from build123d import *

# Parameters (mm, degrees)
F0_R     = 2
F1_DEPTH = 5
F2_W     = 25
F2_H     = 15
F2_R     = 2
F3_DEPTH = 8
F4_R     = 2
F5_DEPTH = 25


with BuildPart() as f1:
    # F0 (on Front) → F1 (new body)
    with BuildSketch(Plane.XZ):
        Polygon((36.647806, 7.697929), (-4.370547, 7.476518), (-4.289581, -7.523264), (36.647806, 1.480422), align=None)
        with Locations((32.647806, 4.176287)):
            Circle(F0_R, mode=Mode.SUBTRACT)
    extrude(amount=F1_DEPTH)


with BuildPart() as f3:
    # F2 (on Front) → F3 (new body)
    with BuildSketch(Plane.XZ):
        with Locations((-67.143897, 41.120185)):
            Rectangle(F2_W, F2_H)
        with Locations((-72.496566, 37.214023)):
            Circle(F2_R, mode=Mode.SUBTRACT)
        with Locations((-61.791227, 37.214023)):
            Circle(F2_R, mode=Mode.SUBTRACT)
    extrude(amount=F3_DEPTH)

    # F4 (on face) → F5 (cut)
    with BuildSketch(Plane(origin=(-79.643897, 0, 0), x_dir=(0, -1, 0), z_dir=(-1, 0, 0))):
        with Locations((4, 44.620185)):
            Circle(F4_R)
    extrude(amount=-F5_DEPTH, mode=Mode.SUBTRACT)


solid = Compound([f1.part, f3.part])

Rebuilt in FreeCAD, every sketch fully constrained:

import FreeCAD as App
import Part
import Sketcher
Q = App.Units.Quantity


def add_polygon(sketch, points):
    """Adds a closed chain of lines whose ends are joined by coincident constraints."""
    first, n = sketch.GeometryCount, len(points)
    for a, b in zip(points, points[1:] + points[:1]):
        sketch.addGeometry(Part.LineSegment(App.Vector(*a, 0), App.Vector(*b, 0)), False)
    for i in range(n):
        sketch.addConstraint(Sketcher.Constraint("Coincident", first + i, 2, first + (i + 1) % n, 1))

doc = App.newDocument("Part")
body = doc.addObject("PartDesign::Body", "Body")

# Sketch on XZ plane
sketch1 = body.newObject("Sketcher::SketchObject", "Sketch")
sketch1.AttachmentSupport = (doc.getObject("XZ_Plane"), [""])
sketch1.MapMode = "FlatFace"
add_polygon(sketch1, [(36.6, 7.7), (-4.4, 7.5), (-4.3, -7.5), (36.6, 1.5)])  # lines 0-3
sketch1.addGeometry(Part.Circle(App.Vector(32.6, 4.2, 0), App.Vector(0, 0, 1), 2), False)  # 4
sketch1.addConstraint(Sketcher.Constraint("Vertical", 3))
sketch1.addConstraint(Sketcher.Constraint("Perpendicular", 0, 1))
sketch1.addConstraint(Sketcher.Constraint("Diameter", 4, Q("4 mm")))
sketch1.addConstraint(Sketcher.Constraint("Distance", 1, Q("15.000001 mm")))
sketch1.addConstraint(Sketcher.Constraint("DistanceX", 4, 3, 2, 2, Q("4 mm")))
sketch1.addConstraint(Sketcher.Constraint("Distance", 0, Q("41.018951 mm")))
sketch1.addConstraint(Sketcher.Constraint("Distance", 2, Q("41.915821 mm")))
sketch1.addConstraint(Sketcher.Constraint("DistanceY", 3, 1, 3, 2, Q("6.217507 mm")))
sketch1.addConstraint(Sketcher.Constraint("DistanceY", -1, 1, 0, 2, Q("7.476518 mm")))
sketch1.addConstraint(Sketcher.Constraint("DistanceX", 1, 2, -1, 1, Q("4.289581 mm")))
sketch1.addConstraint(Sketcher.Constraint("DistanceY", 4, 3, 0, 2, Q("3.300231 mm")))
pad1 = body.newObject("PartDesign::Pad", "Pad")
pad1.Profile = sketch1
pad1.Length = 5
body2 = doc.addObject("PartDesign::Body", "Body001")

# Sketch on XZ plane
sketch2 = body2.newObject("Sketcher::SketchObject", "Sketch001")
sketch2.AttachmentSupport = (doc.getObject("XZ_Plane001"), [""])
sketch2.MapMode = "FlatFace"
add_polygon(sketch2, [(-79.6, 48.6), (-79.6, 33.6), (-54.6, 33.6), (-54.6, 48.6)])  # lines 0-3
sketch2.addGeometry(Part.Circle(App.Vector(-72.5, 37.2, 0), App.Vector(0, 0, 1), 2), False)  # 4
sketch2.addGeometry(Part.Circle(App.Vector(-61.8, 37.2, 0), App.Vector(0, 0, 1), 2), False)  # 5
sketch2.addConstraint(Sketcher.Constraint("Vertical", 0))
sketch2.addConstraint(Sketcher.Constraint("Horizontal", 1))
sketch2.addConstraint(Sketcher.Constraint("Vertical", 2))
sketch2.addConstraint(Sketcher.Constraint("Horizontal", 3))
sketch2.addConstraint(Sketcher.Constraint("Equal", 4, 5))
sketch2.addConstraint(Sketcher.Constraint("Horizontal", 4, 3, 5, 3))
sketch2.addConstraint(Sketcher.Constraint("Diameter", 4, Q("4 mm")))
sketch2.addConstraint(Sketcher.Constraint("DistanceX", 1, 1, 1, 2, Q("25 mm")))
sketch2.addConstraint(Sketcher.Constraint("DistanceY", 0, 2, 0, 1, Q("15 mm")))
sketch2.addConstraint(Sketcher.Constraint("DistanceX", 4, 3, 5, 3, Q("10.705339 mm")))
sketch2.addConstraint(Sketcher.Constraint("DistanceX", 0, 2, 4, 3, Q("7.147331 mm")))
sketch2.addConstraint(Sketcher.Constraint("DistanceX", 4, 3, -1, 1, Q("72.496566 mm")))
sketch2.addConstraint(Sketcher.Constraint("DistanceY", -1, 1, 4, 3, Q("37.214023 mm")))
sketch2.addConstraint(Sketcher.Constraint("DistanceY", -1, 1, 0, 2, Q("33.620185 mm")))
pad2 = body2.newObject("PartDesign::Pad", "Pad001")
pad2.Profile = sketch2
pad2.Length = 8

# Sketch on YZ plane
sketch3 = body2.newObject("Sketcher::SketchObject", "Sketch002")
sketch3.AttachmentSupport = (doc.getObject("YZ_Plane001"), [""])
sketch3.MapMode = "FlatFace"
sketch3.AttachmentOffset = App.Placement(App.Vector(0, 0, -79.643897), App.Rotation())
sketch3.addGeometry(Part.Circle(App.Vector(-4, 44.6, 0), App.Vector(0, 0, 1), 2), False)
sketch3.addConstraint(Sketcher.Constraint("Diameter", 0, Q("4 mm")))
sketch3.addConstraint(Sketcher.Constraint("DistanceX", 0, 3, -1, 1, Q("4 mm")))
sketch3.addConstraint(Sketcher.Constraint("DistanceY", -1, 1, 0, 3, Q("44.620185 mm")))
pocket1 = body2.newObject("PartDesign::Pocket", "Pocket")
pocket1.Profile = sketch3
pocket1.Length = 25
pocket1.Reversed = True

doc.recompute()
